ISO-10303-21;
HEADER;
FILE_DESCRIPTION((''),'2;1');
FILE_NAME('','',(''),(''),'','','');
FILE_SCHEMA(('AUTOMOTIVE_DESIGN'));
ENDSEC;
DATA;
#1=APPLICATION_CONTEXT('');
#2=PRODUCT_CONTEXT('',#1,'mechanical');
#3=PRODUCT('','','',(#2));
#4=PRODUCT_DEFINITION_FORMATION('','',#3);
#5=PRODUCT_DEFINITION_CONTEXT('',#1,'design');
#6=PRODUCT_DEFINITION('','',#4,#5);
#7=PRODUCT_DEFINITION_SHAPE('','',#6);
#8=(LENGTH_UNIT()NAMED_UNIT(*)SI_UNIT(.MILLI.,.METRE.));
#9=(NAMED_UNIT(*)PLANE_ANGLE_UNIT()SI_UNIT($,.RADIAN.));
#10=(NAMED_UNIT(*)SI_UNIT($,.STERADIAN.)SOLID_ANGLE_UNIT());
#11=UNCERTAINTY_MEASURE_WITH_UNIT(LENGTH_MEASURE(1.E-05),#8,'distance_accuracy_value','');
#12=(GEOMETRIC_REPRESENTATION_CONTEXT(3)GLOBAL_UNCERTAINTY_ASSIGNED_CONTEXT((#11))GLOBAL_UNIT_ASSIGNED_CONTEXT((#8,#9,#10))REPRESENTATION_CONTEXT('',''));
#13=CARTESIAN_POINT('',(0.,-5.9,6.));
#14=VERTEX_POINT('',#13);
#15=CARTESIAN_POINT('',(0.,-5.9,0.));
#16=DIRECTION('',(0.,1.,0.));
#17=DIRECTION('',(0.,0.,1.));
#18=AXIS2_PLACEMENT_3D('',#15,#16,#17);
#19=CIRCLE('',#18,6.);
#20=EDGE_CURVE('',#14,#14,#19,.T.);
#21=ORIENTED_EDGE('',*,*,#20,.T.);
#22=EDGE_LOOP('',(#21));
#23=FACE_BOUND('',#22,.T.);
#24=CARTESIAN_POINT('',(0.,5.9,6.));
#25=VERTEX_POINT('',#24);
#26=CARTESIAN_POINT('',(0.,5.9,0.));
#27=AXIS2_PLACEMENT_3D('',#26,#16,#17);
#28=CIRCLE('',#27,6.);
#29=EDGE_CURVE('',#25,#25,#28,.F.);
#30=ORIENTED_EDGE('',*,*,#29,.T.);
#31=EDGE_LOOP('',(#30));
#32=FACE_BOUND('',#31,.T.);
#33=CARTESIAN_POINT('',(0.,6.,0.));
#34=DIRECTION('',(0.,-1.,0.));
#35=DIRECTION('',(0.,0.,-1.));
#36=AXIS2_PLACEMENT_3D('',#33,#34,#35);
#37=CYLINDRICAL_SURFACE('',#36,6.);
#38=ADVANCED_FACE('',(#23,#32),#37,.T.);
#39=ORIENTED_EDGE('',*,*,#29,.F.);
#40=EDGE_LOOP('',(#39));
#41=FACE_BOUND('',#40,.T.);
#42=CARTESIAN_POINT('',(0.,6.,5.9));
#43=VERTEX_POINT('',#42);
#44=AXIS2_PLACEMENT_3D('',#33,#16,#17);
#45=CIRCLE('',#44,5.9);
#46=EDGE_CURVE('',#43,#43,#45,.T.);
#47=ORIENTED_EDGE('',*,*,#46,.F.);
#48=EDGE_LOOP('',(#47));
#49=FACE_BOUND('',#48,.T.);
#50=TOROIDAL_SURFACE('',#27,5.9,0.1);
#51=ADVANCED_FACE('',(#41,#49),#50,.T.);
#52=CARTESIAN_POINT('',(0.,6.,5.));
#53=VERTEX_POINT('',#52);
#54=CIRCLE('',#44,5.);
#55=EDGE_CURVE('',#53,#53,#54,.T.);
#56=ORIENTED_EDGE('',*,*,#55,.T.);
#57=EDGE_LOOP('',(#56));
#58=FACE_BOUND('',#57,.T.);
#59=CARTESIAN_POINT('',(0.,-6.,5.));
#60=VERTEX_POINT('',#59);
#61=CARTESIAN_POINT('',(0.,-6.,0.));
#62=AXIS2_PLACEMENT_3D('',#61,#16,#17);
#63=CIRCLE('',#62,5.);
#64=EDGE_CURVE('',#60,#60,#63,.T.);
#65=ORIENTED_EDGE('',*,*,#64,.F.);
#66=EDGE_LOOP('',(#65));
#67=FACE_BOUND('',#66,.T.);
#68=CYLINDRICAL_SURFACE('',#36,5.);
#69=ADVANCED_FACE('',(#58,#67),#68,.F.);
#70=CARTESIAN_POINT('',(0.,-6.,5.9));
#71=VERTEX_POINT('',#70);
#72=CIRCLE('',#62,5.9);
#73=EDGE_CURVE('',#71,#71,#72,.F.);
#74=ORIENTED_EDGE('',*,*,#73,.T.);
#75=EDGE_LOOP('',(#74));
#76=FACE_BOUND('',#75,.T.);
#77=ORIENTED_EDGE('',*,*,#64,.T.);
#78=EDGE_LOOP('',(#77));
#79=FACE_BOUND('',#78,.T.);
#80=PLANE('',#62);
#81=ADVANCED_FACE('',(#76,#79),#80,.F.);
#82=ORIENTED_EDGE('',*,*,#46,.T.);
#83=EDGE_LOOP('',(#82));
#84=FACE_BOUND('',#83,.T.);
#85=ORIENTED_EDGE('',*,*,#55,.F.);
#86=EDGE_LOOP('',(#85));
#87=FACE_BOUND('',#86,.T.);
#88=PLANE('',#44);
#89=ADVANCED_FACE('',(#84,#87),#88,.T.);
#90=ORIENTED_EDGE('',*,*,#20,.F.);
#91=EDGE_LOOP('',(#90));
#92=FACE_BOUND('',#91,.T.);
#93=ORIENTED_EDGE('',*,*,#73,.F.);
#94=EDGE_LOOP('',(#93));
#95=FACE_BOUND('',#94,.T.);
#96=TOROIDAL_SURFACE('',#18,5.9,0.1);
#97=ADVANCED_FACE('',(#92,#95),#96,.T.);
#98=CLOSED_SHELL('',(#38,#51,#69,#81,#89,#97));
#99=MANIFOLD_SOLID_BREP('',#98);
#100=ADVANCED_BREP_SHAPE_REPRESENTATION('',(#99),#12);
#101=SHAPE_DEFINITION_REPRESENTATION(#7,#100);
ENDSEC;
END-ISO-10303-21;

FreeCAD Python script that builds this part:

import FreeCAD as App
import Part
import Sketcher
from FreeCAD import Vector


def edges_at(feature, points):
    """Names of the edges that pass closest to the given points."""
    edges = feature.Shape.Edges
    near = lambda p: min(range(len(edges)), key=lambda i: edges[i].distToShape(Part.Vertex(*p))[0])
    return sorted({f"Edge{near(p) + 1}" for p in points})

doc = App.newDocument("Part")
body = doc.addObject("PartDesign::Body", "Body")

sketch1 = body.newObject("Sketcher::SketchObject", "Sketch")
sketch1.AttachmentSupport = (doc.getObject("XZ_Plane"), [""])
sketch1.MapMode = "FlatFace"
sketch1.addGeometry([
    Part.Circle(Vector(0, 0, 0), Vector(0, 0, 1), 6),
    Part.Circle(Vector(0, 0, 0), Vector(0, 0, 1), 5),
], False)
sketch1.addConstraint([
    Sketcher.Constraint("Coincident", 0, 3, -1, 1),
    Sketcher.Constraint("Coincident", 1, 3, -1, 1),
    Sketcher.Constraint("Diameter", 0, 12.0),
    Sketcher.Constraint("Diameter", 1, 10.0),
])
pad1 = body.newObject("PartDesign::Pad", "Pad")
pad1.Profile = sketch1
pad1.Length = 12
pad1.Midplane = True
doc.recompute()

fillet = body.newObject("PartDesign::Fillet", "Fillet")
fillet.Base = (pad1, edges_at(pad1, [(0, -6, -6), (0, 6, -6)]))
fillet.Radius = 0.1

doc.recompute()
